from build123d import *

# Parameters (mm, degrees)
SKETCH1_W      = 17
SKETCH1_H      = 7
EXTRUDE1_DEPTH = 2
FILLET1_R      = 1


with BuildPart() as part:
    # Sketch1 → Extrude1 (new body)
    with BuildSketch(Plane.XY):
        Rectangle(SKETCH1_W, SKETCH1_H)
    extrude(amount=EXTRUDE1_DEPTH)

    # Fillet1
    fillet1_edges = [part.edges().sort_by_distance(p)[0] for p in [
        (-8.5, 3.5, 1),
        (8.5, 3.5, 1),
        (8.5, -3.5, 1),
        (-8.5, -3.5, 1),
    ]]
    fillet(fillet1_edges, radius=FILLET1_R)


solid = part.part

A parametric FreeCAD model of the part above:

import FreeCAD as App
import Part
import Sketcher
from FreeCAD import Vector


def edges_at(feature, points):
    """Names of the edges that pass closest to the given points."""
    edges = feature.Shape.Edges
    near = lambda p: min(range(len(edges)), key=lambda i: edges[i].distToShape(Part.Vertex(*p))[0])
    return sorted({f"Edge{near(p) + 1}" for p in points})

doc = App.newDocument("Part")
body = doc.addObject("PartDesign::Body", "Body")

sketch1 = body.newObject("Sketcher::SketchObject", "Sketch")
sketch1.AttachmentSupport = (doc.getObject("XY_Plane"), [""])
sketch1.MapMode = "FlatFace"
sketch1.addGeometry(Part.LineSegment(Vector(-8, 4, 0), Vector(-8, -4, 0)), False)
sketch1.addGeometry(Part.LineSegment(Vector(-8, -4, 0), Vector(8, -4, 0)), False)
sketch1.addGeometry(Part.LineSegment(Vector(8, -4, 0), Vector(8, 4, 0)), False)
sketch1.addGeometry(Part.LineSegment(Vector(8, 4, 0), Vector(-8, 4, 0)), False)
sketch1.addConstraint(Sketcher.Constraint("Coincident", 0, 2, 1, 1))
sketch1.addConstraint(Sketcher.Constraint("Coincident", 1, 2, 2, 1))
sketch1.addConstraint(Sketcher.Constraint("Coincident", 2, 2, 3, 1))
sketch1.addConstraint(Sketcher.Constraint("Coincident", 3, 2, 0, 1))
sketch1.addConstraint(Sketcher.Constraint("Vertical", 0))
sketch1.addConstraint(Sketcher.Constraint("Horizontal", 1))
sketch1.addConstraint(Sketcher.Constraint("Vertical", 2))
sketch1.addConstraint(Sketcher.Constraint("Horizontal", 3))
sketch1.addConstraint(Sketcher.Constraint("Symmetric", 0, 2, 2, 2, -1, 1))
sketch1.addConstraint(Sketcher.Constraint("DistanceX", 1, 1, 1, 2, 17.0))
sketch1.addConstraint(Sketcher.Constraint("DistanceY", 0, 2, 0, 1, 7.0))
pad1 = body.newObject("PartDesign::Pad", "Pad")
pad1.Profile = sketch1
pad1.Length = 2
doc.recompute()

fillet = body.newObject("PartDesign::Fillet", "Fillet")
fillet.Base = (pad1, edges_at(pad1, [
    (-8.5, 3.5, 1),
    (8.5, 3.5, 1),
    (8.5, -3.5, 1),
    (-8.5, -3.5, 1),
]))
fillet.Radius = 1

doc.recompute()
